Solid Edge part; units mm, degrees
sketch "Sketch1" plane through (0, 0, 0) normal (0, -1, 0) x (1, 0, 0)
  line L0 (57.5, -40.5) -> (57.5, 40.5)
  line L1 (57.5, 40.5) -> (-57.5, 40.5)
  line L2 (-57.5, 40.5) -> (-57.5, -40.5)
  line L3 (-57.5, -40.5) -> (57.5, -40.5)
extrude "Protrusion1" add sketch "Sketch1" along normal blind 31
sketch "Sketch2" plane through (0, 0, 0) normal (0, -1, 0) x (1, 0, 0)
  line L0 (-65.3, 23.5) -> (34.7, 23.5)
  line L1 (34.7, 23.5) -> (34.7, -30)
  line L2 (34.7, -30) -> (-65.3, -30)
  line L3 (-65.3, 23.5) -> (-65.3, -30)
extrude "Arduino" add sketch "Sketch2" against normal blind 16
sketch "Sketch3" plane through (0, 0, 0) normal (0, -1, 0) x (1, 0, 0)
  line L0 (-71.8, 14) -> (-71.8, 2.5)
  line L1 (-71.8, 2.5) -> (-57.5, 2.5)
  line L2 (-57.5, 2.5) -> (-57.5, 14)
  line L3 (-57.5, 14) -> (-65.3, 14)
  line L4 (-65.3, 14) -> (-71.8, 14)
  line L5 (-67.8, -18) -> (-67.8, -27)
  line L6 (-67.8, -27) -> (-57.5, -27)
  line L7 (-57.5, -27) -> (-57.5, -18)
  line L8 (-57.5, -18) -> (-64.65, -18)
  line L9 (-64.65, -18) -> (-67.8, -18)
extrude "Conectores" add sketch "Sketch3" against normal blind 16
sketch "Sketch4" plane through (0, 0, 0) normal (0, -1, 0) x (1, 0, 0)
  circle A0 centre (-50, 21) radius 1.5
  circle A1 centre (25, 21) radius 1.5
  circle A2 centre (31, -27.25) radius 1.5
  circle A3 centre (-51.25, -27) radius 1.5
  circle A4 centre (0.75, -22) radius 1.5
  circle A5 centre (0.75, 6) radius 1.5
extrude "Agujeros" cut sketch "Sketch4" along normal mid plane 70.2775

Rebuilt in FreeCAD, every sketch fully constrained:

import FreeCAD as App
import Part
import Sketcher
from FreeCAD import Vector
Q = App.Units.Quantity


def add_polygon(sketch, points):
    """Adds a closed chain of lines whose ends are joined by coincident constraints."""
    first, n = sketch.GeometryCount, len(points)
    for a, b in zip(points, points[1:] + points[:1]):
        sketch.addGeometry(Part.LineSegment(App.Vector(*a, 0), App.Vector(*b, 0)), False)
    for i in range(n):
        sketch.addConstraint(Sketcher.Constraint("Coincident", first + i, 2, first + (i + 1) % n, 1))

doc = App.newDocument("Part")
params = doc.addObject("Spreadsheet::Sheet", "Params")
for row, (alias, value) in enumerate([
    ("sketch1_width", "115 mm"),
    ("sketch1_height", "81 mm"),
    ("pad1_length", "31 mm"),
    ("sketch2_width", "100 mm"),
    ("sketch2_height", "53.5 mm"),
    ("pad2_length", "16 mm"),
    ("sketch3_height", "9 mm"),
    ("sketch3_width", "14.3 mm"),
    ("sketch3_width2", "10.3 mm"),
    ("sketch3_height2", "11.5 mm"),
    ("pad3_length", "16 mm"),
    ("sketch4_diameter", "3 mm"),
    ("pocket1_length", "70.2775 mm"),
], start=1):
    params.set(f"A{row}", alias)
    params.set(f"B{row}", "=" + value)
    params.setAlias(f"B{row}", alias)

body = doc.addObject("PartDesign::Body", "Body")

# Sketch on XZ plane
sketch1 = body.newObject("Sketcher::SketchObject", "Sketch")
sketch1.AttachmentSupport = (doc.getObject("XZ_Plane"), [""])
sketch1.MapMode = "FlatFace"
add_polygon(sketch1, [(-57.5, -40.5), (57.5, -40.5), (57.5, 40.5), (-57.5, 40.5)])  # lines 0-3
sketch1.addConstraint([
    Sketcher.Constraint("Horizontal", 0),
    Sketcher.Constraint("Vertical", 1),
    Sketcher.Constraint("Horizontal", 2),
    Sketcher.Constraint("Vertical", 3),
    Sketcher.Constraint("Symmetric", 0, 2, 2, 2, -1, 1),
    Sketcher.Constraint("DistanceX", 0, 1, 0, 2, Q("115 mm")),
    Sketcher.Constraint("DistanceY", 1, 1, 1, 2, Q("81 mm")),
])
sketch1.setExpression("Constraints[9]", "Params.sketch1_width")
sketch1.setExpression("Constraints[10]", "Params.sketch1_height")
pad1 = body.newObject("PartDesign::Pad", "Pad")
pad1.Profile = sketch1
pad1.setExpression("Length", "Params.pad1_length")

# Sketch on XZ plane
sketch2 = body.newObject("Sketcher::SketchObject", "Sketch001")
sketch2.AttachmentSupport = (doc.getObject("XZ_Plane"), [""])
sketch2.MapMode = "FlatFace"
add_polygon(sketch2, [(34.7, 23.5), (-65.3, 23.5), (-65.3, -30), (34.7, -30)])  # lines 0-3
sketch2.addConstraint([
    Sketcher.Constraint("Horizontal", 0),
    Sketcher.Constraint("Vertical", 1),
    Sketcher.Constraint("Horizontal", 2),
    Sketcher.Constraint("Vertical", 3),
    Sketcher.Constraint("DistanceX", 0, 2, 0, 1, Q("100 mm")),
    Sketcher.Constraint("DistanceY", 1, 2, 1, 1, Q("53.5 mm")),
    Sketcher.Constraint("DistanceY", 1, 2, -1, 1, Q("30 mm")),
    Sketcher.Constraint("DistanceX", 0, 2, -1, 1, Q("65.3 mm")),
])
sketch2.setExpression("Constraints[8]", "Params.sketch2_width")
sketch2.setExpression("Constraints[9]", "Params.sketch2_height")
pad2 = body.newObject("PartDesign::Pad", "Pad001")
pad2.Profile = sketch2
pad2.setExpression("Length", "Params.pad2_length")
pad2.Reversed = True

# Sketch on XZ plane
sketch3 = body.newObject("Sketcher::SketchObject", "Sketch002")
sketch3.AttachmentSupport = (doc.getObject("XZ_Plane"), [""])
sketch3.MapMode = "FlatFace"
add_polygon(sketch3, [(-57.5, 14), (-71.8, 14), (-71.8, 2.5), (-57.5, 2.5)])  # lines 0-3
add_polygon(sketch3, [(-57.5, -18), (-67.8, -18), (-67.8, -27), (-57.5, -27)])  # lines 4-7
sketch3.addConstraint([
    Sketcher.Constraint("Horizontal", 0),
    Sketcher.Constraint("Vertical", 1),
    Sketcher.Constraint("Horizontal", 2),
    Sketcher.Constraint("Vertical", 3),
    Sketcher.Constraint("Horizontal", 4),
    Sketcher.Constraint("Vertical", 5),
    Sketcher.Constraint("Horizontal", 6),
    Sketcher.Constraint("Vertical", 7),
    Sketcher.Constraint("Vertical", 3, 2, 6, 2),
    Sketcher.Constraint("DistanceY", 5, 2, 5, 1, Q("9 mm")),
    Sketcher.Constraint("DistanceX", 0, 2, 0, 1, Q("14.3 mm")),
    Sketcher.Constraint("DistanceX", 4, 2, 4, 1, Q("10.3 mm")),
    Sketcher.Constraint("DistanceY", 1, 2, 1, 1, Q("11.5 mm")),
    Sketcher.Constraint("DistanceY", -1, 1, 0, 2, Q("14 mm")),
    Sketcher.Constraint("DistanceY", 4, 2, -1, 1, Q("18 mm")),
    Sketcher.Constraint("DistanceX", 0, 2, -1, 1, Q("71.8 mm")),
])
sketch3.setExpression("Constraints[17]", "Params.sketch3_height")
sketch3.setExpression("Constraints[18]", "Params.sketch3_width")
sketch3.setExpression("Constraints[19]", "Params.sketch3_width2")
sketch3.setExpression("Constraints[20]", "Params.sketch3_height2")
pad3 = body.newObject("PartDesign::Pad", "Pad002")
pad3.Profile = sketch3
pad3.setExpression("Length", "Params.pad3_length")
pad3.Reversed = True

# Sketch on XZ plane
sketch4 = body.newObject("Sketcher::SketchObject", "Sketch003")
sketch4.AttachmentSupport = (doc.getObject("XZ_Plane"), [""])
sketch4.MapMode = "FlatFace"
sketch4.addGeometry([
    Part.Circle(Vector(-50, 21, 0), Vector(0, 0, 1), 1.5),  # 0
    Part.Circle(Vector(25, 21, 0), Vector(0, 0, 1), 1.5),  # 1
    Part.Circle(Vector(31, -27.25, 0), Vector(0, 0, 1), 1.5),  # 2
    Part.Circle(Vector(-51.25, -27, 0), Vector(0, 0, 1), 1.5),  # 3
    Part.Circle(Vector(0.75, -22, 0), Vector(0, 0, 1), 1.5),  # 4
    Part.Circle(Vector(0.75, 6, 0), Vector(0, 0, 1), 1.5),  # 5
], False)
sketch4.addConstraint([
    Sketcher.Constraint("Equal", 0, 1),
    Sketcher.Constraint("Equal", 1, 2),
    Sketcher.Constraint("Equal", 2, 3),
    Sketcher.Constraint("Equal", 3, 4),
    Sketcher.Constraint("Equal", 4, 5),
    Sketcher.Constraint("Horizontal", 0, 3, 1, 3),
    Sketcher.Constraint("Vertical", 4, 3, 5, 3),
    Sketcher.Constraint("Diameter", 0, Q("3 mm")),
    Sketcher.Constraint("DistanceX", 0, 3, -1, 1, Q("50 mm")),
    Sketcher.Constraint("DistanceY", -1, 1, 0, 3, Q("21 mm")),
    Sketcher.Constraint("DistanceX", -1, 1, 1, 3, Q("25 mm")),
    Sketcher.Constraint("DistanceX", -1, 1, 2, 3, Q("31 mm")),
    Sketcher.Constraint("DistanceY", 3, 3, -1, 1, Q("27 mm")),
    Sketcher.Constraint("DistanceY", 4, 3, -1, 1, Q("22 mm")),
    Sketcher.Constraint("DistanceY", -1, 1, 5, 3, Q("6 mm")),
    Sketcher.Constraint("DistanceX", 3, 3, 4, 3, Q("52 mm")),
    Sketcher.Constraint("DistanceY", 2, 3, -1, 1, Q("27.25 mm")),
    Sketcher.Constraint("DistanceX", 3, 3, -1, 1, Q("51.25 mm")),
])
sketch4.setExpression("Constraints[7]", "Params.sketch4_diameter")
pocket1 = body.newObject("PartDesign::Pocket", "Pocket")
pocket1.Profile = sketch4
pocket1.setExpression("Length", "Params.pocket1_length")
pocket1.Midplane = True

doc.recompute()
